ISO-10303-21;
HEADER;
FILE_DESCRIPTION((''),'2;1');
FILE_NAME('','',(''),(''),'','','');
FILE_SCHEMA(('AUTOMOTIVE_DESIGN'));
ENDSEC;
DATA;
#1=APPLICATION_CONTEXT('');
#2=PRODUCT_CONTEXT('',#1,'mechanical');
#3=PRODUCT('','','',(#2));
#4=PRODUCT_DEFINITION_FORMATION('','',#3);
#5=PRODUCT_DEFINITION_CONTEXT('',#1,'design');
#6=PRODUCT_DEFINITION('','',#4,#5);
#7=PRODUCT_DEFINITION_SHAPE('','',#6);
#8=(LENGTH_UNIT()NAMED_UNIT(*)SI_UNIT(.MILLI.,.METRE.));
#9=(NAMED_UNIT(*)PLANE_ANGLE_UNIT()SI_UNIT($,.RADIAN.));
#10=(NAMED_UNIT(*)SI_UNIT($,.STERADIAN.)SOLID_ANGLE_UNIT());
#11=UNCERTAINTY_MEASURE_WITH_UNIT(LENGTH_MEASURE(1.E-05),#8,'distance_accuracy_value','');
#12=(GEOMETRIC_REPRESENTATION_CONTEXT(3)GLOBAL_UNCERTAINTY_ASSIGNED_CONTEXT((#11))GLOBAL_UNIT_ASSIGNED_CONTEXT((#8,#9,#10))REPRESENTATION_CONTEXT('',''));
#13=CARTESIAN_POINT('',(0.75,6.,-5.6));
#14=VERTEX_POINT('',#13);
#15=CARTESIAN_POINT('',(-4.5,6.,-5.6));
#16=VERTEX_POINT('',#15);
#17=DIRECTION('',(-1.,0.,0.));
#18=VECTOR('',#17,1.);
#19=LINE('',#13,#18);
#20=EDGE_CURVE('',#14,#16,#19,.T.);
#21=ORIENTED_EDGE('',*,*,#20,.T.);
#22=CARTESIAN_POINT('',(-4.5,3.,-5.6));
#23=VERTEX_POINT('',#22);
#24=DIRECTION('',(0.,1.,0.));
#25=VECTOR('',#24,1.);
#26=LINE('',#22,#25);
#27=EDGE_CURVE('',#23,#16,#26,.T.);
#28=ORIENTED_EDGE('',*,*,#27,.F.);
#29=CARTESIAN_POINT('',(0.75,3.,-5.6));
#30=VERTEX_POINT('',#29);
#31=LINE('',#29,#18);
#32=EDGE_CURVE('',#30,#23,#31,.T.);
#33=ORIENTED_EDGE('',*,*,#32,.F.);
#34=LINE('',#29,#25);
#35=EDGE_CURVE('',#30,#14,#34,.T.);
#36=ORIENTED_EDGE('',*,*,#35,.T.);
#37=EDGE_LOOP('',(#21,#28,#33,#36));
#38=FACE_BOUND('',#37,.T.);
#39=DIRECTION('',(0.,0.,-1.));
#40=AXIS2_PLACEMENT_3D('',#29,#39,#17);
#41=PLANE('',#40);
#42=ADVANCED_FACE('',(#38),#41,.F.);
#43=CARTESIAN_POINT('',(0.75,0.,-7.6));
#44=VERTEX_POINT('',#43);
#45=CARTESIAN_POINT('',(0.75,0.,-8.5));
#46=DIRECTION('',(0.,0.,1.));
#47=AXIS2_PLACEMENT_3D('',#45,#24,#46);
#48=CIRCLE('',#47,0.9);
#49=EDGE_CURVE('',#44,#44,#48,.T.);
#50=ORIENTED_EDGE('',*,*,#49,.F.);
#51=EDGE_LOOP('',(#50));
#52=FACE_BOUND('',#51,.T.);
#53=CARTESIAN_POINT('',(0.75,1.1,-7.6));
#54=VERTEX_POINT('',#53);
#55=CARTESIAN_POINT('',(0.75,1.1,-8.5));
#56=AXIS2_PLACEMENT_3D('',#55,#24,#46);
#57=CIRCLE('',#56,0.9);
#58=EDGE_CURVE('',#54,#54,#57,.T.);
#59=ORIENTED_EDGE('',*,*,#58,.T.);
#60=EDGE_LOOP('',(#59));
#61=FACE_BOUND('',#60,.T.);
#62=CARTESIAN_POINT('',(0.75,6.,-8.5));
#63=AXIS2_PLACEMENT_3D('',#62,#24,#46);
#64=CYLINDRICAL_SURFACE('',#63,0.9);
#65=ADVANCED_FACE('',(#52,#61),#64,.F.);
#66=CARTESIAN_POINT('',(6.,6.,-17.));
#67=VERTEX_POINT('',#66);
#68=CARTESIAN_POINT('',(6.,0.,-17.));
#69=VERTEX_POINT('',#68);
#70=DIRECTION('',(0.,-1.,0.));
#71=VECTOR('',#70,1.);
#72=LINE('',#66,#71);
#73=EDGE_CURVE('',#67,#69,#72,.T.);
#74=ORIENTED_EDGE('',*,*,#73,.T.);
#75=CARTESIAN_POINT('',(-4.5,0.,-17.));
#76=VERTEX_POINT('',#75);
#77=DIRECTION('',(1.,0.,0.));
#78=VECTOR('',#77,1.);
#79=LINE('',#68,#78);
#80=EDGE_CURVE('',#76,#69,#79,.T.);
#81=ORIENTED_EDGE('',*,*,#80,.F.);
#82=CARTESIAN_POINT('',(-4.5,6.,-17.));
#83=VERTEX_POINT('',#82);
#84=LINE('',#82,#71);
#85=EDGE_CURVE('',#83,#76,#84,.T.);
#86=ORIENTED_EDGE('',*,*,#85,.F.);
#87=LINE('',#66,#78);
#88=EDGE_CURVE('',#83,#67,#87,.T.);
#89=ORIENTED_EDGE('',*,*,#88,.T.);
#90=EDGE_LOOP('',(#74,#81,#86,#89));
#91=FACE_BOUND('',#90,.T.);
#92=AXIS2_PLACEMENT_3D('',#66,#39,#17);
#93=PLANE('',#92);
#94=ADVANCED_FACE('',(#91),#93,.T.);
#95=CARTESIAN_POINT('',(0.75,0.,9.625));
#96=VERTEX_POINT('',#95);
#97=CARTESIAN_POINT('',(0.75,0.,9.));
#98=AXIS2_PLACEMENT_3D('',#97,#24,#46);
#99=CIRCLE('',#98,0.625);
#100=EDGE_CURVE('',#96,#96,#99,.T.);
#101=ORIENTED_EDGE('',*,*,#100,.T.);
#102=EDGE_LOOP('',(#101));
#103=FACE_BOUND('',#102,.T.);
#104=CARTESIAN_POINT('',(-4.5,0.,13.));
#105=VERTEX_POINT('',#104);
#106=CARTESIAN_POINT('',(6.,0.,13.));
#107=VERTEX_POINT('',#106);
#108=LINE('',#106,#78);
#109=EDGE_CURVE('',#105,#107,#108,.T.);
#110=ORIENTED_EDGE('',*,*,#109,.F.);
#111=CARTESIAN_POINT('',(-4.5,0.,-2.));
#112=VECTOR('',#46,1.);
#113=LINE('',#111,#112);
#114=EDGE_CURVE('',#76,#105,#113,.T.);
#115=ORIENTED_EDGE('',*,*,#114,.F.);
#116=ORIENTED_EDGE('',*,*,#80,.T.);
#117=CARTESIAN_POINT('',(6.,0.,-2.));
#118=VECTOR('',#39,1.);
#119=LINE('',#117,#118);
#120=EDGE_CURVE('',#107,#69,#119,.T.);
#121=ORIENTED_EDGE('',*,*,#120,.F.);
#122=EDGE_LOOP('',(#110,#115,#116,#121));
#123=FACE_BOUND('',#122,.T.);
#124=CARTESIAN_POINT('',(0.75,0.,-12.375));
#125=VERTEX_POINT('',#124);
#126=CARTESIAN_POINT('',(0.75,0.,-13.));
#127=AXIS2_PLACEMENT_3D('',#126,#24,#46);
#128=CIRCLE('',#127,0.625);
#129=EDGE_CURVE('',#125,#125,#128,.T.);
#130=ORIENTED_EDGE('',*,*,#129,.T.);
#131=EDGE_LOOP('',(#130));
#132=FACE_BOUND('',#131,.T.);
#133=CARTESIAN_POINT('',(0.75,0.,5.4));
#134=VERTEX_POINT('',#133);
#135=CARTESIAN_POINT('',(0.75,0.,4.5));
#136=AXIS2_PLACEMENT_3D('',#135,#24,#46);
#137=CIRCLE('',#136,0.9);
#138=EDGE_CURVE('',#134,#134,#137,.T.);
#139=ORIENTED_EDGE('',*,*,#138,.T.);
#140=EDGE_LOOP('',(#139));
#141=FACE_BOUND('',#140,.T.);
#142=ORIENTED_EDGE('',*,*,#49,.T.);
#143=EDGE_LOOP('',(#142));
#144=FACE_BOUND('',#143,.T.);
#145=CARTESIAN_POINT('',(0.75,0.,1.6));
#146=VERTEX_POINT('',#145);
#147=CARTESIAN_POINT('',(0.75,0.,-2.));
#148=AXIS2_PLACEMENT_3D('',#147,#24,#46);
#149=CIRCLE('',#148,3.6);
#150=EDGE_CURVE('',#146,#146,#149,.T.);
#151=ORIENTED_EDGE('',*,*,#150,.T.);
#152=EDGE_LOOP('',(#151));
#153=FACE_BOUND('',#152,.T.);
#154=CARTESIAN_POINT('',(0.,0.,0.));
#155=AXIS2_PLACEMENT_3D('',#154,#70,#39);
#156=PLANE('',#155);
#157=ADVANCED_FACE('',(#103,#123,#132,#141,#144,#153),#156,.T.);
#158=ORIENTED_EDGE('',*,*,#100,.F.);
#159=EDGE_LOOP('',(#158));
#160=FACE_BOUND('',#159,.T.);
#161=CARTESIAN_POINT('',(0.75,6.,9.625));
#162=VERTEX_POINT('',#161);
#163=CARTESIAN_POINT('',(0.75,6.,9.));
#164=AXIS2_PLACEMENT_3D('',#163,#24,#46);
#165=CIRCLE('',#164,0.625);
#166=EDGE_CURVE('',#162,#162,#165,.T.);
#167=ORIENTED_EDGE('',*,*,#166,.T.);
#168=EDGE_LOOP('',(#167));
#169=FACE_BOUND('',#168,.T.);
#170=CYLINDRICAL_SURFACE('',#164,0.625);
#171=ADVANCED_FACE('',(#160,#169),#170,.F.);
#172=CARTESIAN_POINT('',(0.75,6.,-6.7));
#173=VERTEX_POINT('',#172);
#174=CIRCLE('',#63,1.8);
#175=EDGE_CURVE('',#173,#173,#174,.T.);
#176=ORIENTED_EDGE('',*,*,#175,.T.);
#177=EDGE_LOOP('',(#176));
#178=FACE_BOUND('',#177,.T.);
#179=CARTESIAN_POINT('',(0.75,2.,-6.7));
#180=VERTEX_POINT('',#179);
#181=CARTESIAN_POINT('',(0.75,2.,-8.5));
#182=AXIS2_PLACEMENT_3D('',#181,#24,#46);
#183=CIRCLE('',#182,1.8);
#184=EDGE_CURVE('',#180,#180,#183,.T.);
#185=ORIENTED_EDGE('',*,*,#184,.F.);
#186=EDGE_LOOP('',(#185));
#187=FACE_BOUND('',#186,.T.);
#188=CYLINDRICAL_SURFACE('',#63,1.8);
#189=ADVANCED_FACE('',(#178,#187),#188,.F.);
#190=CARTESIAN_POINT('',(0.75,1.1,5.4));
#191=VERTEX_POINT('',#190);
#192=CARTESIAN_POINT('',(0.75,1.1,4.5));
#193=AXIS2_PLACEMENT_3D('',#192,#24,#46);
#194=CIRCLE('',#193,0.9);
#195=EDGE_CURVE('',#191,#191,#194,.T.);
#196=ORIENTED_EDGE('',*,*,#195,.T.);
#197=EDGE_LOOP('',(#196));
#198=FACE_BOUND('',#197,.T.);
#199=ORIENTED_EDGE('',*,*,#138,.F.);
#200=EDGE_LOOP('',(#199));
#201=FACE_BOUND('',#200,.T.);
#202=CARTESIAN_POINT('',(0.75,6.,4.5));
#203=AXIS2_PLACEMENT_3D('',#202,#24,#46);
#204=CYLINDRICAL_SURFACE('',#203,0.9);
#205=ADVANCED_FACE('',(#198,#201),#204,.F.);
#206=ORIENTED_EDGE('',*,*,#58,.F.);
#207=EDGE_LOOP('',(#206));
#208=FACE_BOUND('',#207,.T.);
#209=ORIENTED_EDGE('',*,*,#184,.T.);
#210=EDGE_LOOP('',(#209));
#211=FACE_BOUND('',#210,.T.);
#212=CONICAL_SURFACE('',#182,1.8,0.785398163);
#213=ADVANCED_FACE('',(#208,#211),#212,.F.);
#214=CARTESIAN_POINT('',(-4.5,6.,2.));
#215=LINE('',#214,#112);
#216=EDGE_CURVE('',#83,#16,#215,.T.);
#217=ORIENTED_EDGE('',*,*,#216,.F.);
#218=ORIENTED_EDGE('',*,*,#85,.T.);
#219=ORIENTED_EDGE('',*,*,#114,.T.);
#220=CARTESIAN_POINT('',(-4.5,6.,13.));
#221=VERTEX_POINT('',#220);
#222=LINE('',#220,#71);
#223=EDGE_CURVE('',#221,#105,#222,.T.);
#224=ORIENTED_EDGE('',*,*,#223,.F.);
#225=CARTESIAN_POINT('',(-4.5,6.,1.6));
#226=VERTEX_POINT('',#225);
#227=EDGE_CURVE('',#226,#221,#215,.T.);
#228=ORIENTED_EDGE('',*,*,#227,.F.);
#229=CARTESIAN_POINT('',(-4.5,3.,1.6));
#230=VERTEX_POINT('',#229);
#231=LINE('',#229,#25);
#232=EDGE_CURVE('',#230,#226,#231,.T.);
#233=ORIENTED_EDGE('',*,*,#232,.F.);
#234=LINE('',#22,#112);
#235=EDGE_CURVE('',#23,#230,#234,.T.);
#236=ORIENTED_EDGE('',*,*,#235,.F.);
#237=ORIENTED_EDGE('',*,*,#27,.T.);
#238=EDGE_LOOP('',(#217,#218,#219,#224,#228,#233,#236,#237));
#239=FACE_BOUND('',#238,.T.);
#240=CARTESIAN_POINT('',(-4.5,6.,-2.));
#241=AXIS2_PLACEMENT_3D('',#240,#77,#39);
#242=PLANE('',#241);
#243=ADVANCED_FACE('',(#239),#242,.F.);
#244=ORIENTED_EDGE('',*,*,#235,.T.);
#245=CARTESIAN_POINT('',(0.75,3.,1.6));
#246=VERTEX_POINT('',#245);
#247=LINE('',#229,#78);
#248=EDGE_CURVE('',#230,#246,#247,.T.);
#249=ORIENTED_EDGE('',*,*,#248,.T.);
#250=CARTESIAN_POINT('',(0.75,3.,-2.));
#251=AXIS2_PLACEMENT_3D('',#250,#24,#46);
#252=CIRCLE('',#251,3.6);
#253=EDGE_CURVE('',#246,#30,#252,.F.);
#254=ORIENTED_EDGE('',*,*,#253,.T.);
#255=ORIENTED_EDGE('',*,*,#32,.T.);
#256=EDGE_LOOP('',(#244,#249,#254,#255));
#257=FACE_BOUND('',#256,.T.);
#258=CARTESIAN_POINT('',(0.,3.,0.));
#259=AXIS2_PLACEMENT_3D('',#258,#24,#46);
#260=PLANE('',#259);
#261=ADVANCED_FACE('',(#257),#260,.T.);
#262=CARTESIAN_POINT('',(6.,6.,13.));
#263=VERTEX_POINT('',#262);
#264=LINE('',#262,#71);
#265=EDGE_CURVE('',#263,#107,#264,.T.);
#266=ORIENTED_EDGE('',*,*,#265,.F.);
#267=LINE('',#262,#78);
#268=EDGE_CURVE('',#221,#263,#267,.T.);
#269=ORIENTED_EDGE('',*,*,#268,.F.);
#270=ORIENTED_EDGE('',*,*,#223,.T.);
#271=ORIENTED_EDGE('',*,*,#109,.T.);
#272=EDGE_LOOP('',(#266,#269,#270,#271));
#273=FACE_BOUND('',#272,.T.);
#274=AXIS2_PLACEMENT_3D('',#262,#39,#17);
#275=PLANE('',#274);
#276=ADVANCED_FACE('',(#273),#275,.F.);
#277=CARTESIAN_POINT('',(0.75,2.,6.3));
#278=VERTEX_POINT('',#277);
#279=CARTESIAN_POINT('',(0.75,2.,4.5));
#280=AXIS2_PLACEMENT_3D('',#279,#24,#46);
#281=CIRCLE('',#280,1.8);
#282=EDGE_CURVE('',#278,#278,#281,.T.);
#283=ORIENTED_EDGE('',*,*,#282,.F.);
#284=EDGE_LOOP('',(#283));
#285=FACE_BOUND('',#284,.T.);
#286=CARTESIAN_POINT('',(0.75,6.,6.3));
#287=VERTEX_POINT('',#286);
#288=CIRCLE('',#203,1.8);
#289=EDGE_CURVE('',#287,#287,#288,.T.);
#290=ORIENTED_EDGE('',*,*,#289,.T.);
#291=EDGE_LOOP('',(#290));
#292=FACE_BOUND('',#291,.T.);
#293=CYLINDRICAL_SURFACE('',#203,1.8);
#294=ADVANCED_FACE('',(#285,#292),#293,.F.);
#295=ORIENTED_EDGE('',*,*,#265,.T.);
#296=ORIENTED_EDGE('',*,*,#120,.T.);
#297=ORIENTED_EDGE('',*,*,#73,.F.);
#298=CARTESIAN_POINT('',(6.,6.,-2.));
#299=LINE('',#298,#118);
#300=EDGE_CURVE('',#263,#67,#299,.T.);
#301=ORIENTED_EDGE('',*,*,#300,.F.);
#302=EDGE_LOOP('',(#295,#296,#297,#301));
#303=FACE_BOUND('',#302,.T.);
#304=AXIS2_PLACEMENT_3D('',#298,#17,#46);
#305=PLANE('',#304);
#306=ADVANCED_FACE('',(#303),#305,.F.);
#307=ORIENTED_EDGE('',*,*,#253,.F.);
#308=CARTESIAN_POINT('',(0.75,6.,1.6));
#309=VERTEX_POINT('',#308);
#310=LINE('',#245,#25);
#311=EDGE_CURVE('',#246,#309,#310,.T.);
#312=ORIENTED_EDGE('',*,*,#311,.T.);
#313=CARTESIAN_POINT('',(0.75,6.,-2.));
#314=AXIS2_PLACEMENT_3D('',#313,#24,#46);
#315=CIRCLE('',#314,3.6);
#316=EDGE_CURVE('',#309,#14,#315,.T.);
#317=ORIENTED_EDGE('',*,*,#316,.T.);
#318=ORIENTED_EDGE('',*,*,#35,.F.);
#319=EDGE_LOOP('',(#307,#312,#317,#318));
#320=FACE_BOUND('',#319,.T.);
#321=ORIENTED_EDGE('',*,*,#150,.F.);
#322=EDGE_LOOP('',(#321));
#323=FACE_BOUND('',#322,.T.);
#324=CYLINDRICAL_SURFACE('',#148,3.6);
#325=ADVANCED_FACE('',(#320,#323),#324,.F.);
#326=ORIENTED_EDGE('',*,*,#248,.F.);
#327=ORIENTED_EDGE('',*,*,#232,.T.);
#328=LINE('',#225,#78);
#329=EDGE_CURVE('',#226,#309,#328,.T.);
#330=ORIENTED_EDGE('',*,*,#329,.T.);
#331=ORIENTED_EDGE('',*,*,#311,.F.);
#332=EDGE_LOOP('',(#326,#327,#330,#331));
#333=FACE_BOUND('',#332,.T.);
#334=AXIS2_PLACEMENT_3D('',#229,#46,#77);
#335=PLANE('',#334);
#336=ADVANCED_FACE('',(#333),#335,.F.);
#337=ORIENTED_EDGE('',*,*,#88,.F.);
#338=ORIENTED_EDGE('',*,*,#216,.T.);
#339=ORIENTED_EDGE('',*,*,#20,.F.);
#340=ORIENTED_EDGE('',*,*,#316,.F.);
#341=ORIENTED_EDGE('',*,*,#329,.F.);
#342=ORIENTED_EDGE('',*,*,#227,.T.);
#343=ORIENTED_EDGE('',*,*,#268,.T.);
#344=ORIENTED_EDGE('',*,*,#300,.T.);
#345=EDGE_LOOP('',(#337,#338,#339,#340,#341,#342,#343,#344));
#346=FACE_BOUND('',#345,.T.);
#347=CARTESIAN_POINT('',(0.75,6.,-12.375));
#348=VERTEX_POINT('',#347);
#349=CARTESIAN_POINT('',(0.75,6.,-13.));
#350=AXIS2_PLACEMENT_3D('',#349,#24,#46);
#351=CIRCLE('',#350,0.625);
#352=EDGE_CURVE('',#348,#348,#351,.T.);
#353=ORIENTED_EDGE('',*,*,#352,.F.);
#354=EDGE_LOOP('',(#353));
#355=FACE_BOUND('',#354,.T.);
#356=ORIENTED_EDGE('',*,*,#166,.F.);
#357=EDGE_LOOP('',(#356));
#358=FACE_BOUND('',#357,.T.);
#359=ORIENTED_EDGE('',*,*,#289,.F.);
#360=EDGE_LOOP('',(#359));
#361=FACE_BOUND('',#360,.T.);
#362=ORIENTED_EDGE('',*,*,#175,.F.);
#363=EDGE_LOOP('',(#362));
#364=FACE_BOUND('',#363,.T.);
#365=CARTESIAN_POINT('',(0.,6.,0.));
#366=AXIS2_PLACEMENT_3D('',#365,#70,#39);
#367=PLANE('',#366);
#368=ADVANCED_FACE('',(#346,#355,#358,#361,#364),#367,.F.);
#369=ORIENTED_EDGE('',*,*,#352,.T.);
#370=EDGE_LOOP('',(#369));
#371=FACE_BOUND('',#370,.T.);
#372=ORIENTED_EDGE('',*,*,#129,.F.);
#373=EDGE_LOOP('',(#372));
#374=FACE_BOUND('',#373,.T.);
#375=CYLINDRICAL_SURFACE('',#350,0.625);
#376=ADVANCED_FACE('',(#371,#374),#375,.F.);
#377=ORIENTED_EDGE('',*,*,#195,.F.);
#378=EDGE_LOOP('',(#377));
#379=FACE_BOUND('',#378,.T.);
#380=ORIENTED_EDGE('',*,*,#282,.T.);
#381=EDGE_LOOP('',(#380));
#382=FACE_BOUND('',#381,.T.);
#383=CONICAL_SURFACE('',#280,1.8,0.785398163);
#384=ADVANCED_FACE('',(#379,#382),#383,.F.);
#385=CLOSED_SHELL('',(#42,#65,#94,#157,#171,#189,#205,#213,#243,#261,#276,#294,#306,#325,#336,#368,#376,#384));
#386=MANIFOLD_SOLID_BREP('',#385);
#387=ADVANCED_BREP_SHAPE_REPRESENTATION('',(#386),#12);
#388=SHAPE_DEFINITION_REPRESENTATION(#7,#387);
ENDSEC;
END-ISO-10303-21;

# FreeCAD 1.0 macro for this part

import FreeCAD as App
import Part
import Sketcher
Q = App.Units.Quantity

doc = App.newDocument("Part")
params = doc.addObject("Spreadsheet::Sheet", "Params")
for row, (alias, value) in enumerate([
    ("sketch1_height", "15 mm"),
    ("sketch1_width", "10.5 mm"),
    ("pad1_length", "6 mm"),
    ("sketch2_width", "6 mm"),
    ("sketch2_width2", "4 mm"),
    ("sketch2_width3", "1.1 mm"),
    ("sketch2_height", "1.8 mm"),
    ("groove_angle", "360 deg"),
    ("sketch3_diameter", "1.25 mm"),
    ("hole_diameter", "1.25 mm"),
    ("sketch4_diameter", "7.2 mm"),
    ("sketch5_height", "7.2 mm"),
    ("sketch5_width", "5.25 mm"),
    ("pocket2_length", "3 mm"),
], start=1):
    params.set(f"A{row}", alias)
    params.set(f"B{row}", "=" + value)
    params.setAlias(f"B{row}", alias)

body = doc.addObject("PartDesign::Body", "Body")

# Sketch on XZ plane
sketch1 = body.newObject("Sketcher::SketchObject", "Sketch")
sketch1.AttachmentSupport = (doc.getObject("XZ_Plane"), [""])
sketch1.MapMode = "FlatFace"
sketch1.addGeometry([
    Part.LineSegment(App.Vector(6, 13, 0), App.Vector(6, -2, 0)),
    Part.LineSegment(App.Vector(6, -2, 0), App.Vector(-4, -2, 0)),
    Part.LineSegment(App.Vector(-4, -2, 0), App.Vector(-4, 13, 0)),
    Part.LineSegment(App.Vector(-4, 13, 0), App.Vector(6, 13, 0)),
], False)
sketch1.addConstraint([
    Sketcher.Constraint("Coincident", 0, 2, 1, 1),
    Sketcher.Constraint("Coincident", 1, 2, 2, 1),
    Sketcher.Constraint("Coincident", 2, 2, 3, 1),
    Sketcher.Constraint("Coincident", 3, 2, 0, 1),
    Sketcher.Constraint("Vertical", 0),
    Sketcher.Constraint("Horizontal", 1),
    Sketcher.Constraint("Vertical", 2),
    Sketcher.Constraint("Horizontal", 3),
    Sketcher.Constraint("DistanceY", 0, 2, 0, 1, 15.0),
    Sketcher.Constraint("DistanceX", 1, 2, 1, 1, 10.5),
    Sketcher.Constraint("DistanceX", -1, 1, 0, 2, 6.0),
    Sketcher.Constraint("DistanceY", 0, 2, -1, 1, 2.0),
])
sketch1.setExpression("Constraints[8]", "Params.sketch1_height")
sketch1.setExpression("Constraints[9]", "Params.sketch1_width")
pad1 = body.newObject("PartDesign::Pad", "Pad")
pad1.Profile = sketch1
pad1.setExpression("Length", "Params.pad1_length")
pad1.Reversed = True

# Sketch on YZ plane
sketch2 = body.newObject("Sketcher::SketchObject", "Sketch001")
sketch2.AttachmentSupport = (doc.getObject("YZ_Plane"), [""])
sketch2.MapMode = "FlatFace"
sketch2.AttachmentOffset = App.Placement(App.Vector(0, 0, 0.75), App.Rotation())
sketch2.addGeometry([
    Part.LineSegment(App.Vector(0, 4.5, 0), App.Vector(6, 4.5, 0)),  # 0
    Part.LineSegment(App.Vector(6, 4.5, 0), App.Vector(6, 6.3, 0)),  # 1
    Part.LineSegment(App.Vector(6, 6.3, 0), App.Vector(2, 6.3, 0)),  # 2
    Part.LineSegment(App.Vector(2, 6.3, 0), App.Vector(1.1, 5.4, 0)),  # 3
    Part.LineSegment(App.Vector(1.1, 5.4, 0), App.Vector(0, 5.4, 0)),  # 4
    Part.LineSegment(App.Vector(0, 5.4, 0), App.Vector(0, 4.5, 0)),  # 5
], False)
sketch2.addGeometry(Part.LineSegment(App.Vector(6, 4.5, 0), App.Vector(0, 4.5, 0)), True)  # axis
sketch2.addConstraint([
    Sketcher.Constraint("Coincident", 0, 2, 1, 1),
    Sketcher.Constraint("Coincident", 1, 2, 2, 1),
    Sketcher.Constraint("Coincident", 2, 2, 3, 1),
    Sketcher.Constraint("Coincident", 3, 2, 4, 1),
    Sketcher.Constraint("Coincident", 4, 2, 5, 1),
    Sketcher.Constraint("Coincident", 5, 2, 0, 1),
    Sketcher.Constraint("Horizontal", 0),
    Sketcher.Constraint("Vertical", 1),
    Sketcher.Constraint("Horizontal", 2),
    Sketcher.Constraint("Horizontal", 4),
    Sketcher.Constraint("Vertical", 5),
    Sketcher.Constraint("Horizontal", 6),
    Sketcher.Constraint("Coincident", 6, 1, 0, 2),
    Sketcher.Constraint("PointOnObject", 4, 2, -2),
    Sketcher.Constraint("PointOnObject", 6, 2, -2),
    Sketcher.Constraint("DistanceX", 0, 1, 0, 2, 6.0),
    Sketcher.Constraint("DistanceX", 2, 2, 2, 1, 4.0),
    Sketcher.Constraint("Angle", 3, Q("-135 deg")),
    Sketcher.Constraint("DistanceX", 4, 2, 4, 1, 1.1),
    Sketcher.Constraint("DistanceY", 1, 1, 1, 2, 1.8),
    Sketcher.Constraint("DistanceY", -1, 1, 0, 2, 4.5),
])
sketch2.setExpression("Constraints[15]", "Params.sketch2_width")
sketch2.setExpression("Constraints[16]", "Params.sketch2_width2")
sketch2.setExpression("Constraints[18]", "Params.sketch2_width3")
sketch2.setExpression("Constraints[19]", "Params.sketch2_height")
groove = body.newObject("PartDesign::Groove", "Groove")
groove.Profile = sketch2
groove.ReferenceAxis = (sketch2, ["Axis0"])
groove.setExpression("Angle", "Params.groove_angle")

# Sketch on XZ plane
sketch3 = body.newObject("Sketcher::SketchObject", "Sketch002")
sketch3.AttachmentSupport = (doc.getObject("XZ_Plane"), [""])
sketch3.MapMode = "FlatFace"
sketch3.AttachmentOffset = App.Placement(App.Vector(0, 0, -6), App.Rotation())
sketch3.addGeometry(Part.Circle(App.Vector(0.8, 9, 0), App.Vector(0, 0, 1), 0.6), False)
sketch3.addConstraint([
    Sketcher.Constraint("Diameter", 0, 1.25),
    Sketcher.Constraint("DistanceY", -1, 1, 0, 3, 9.0),
    Sketcher.Constraint("DistanceX", -1, 1, 0, 3, 0.75),
])
sketch3.setExpression("Constraints[0]", "Params.sketch3_diameter")
doc.recompute()
hole = body.newObject("PartDesign::Hole", "Hole")
hole.Profile = sketch3
hole.ThreadType = "None"
hole.setExpression("Diameter", "Params.hole_diameter")
hole.DepthType = "ThroughAll"
hole.Reversed = True
doc.recompute()

datumplane = body.newObject("PartDesign::Plane", "DatumPlane")
datumplane.AttachmentSupport = (doc.getObject("XY_Plane"), [""])
datumplane.MapMode = "FlatFace"
datumplane.AttachmentOffset = App.Placement(App.Vector(0, 0, -2), App.Rotation())
mirrored = body.newObject("PartDesign::Mirrored", "Mirrored")
mirrored.Originals = [pad1, groove, hole]
mirrored.MirrorPlane = (datumplane, [""])
body.Tip = mirrored

# Sketch on XZ plane
sketch4 = body.newObject("Sketcher::SketchObject", "Sketch003")
sketch4.AttachmentSupport = (doc.getObject("XZ_Plane"), [""])
sketch4.MapMode = "FlatFace"
sketch4.AttachmentOffset = App.Placement(App.Vector(0, 0, -6), App.Rotation())
sketch4.addGeometry(Part.Circle(App.Vector(0.8, -2, 0), App.Vector(0, 0, 1), 3.6), False)
sketch4.addConstraint([
    Sketcher.Constraint("Diameter", 0, 7.2),
    Sketcher.Constraint("DistanceY", 0, 3, -1, 1, 2.0),
    Sketcher.Constraint("DistanceX", -1, 1, 0, 3, 0.75),
])
sketch4.setExpression("Constraints[0]", "Params.sketch4_diameter")
pocket1 = body.newObject("PartDesign::Pocket", "Pocket")
pocket1.Profile = sketch4
pocket1.Type = "ThroughAll"
pocket1.Reversed = True

# Sketch on XZ plane
sketch5 = body.newObject("Sketcher::SketchObject", "Sketch004")
sketch5.AttachmentSupport = (doc.getObject("XZ_Plane"), [""])
sketch5.MapMode = "FlatFace"
sketch5.AttachmentOffset = App.Placement(App.Vector(0, 0, -6), App.Rotation())
sketch5.addGeometry([
    Part.LineSegment(App.Vector(-4, -6, 0), App.Vector(-4, 2, 0)),
    Part.LineSegment(App.Vector(-4, 2, 0), App.Vector(1, 2, 0)),
    Part.LineSegment(App.Vector(1, 2, 0), App.Vector(1, -6, 0)),
    Part.LineSegment(App.Vector(1, -6, 0), App.Vector(-4, -6, 0)),
], False)
sketch5.addConstraint([
    Sketcher.Constraint("Coincident", 0, 2, 1, 1),
    Sketcher.Constraint("Coincident", 1, 2, 2, 1),
    Sketcher.Constraint("Coincident", 2, 2, 3, 1),
    Sketcher.Constraint("Coincident", 3, 2, 0, 1),
    Sketcher.Constraint("Vertical", 0),
    Sketcher.Constraint("Horizontal", 1),
    Sketcher.Constraint("Vertical", 2),
    Sketcher.Constraint("Horizontal", 3),
    Sketcher.Constraint("DistanceY", 0, 1, 0, 2, 7.2),
    Sketcher.Constraint("DistanceX", 1, 1, 1, 2, 5.25),
    Sketcher.Constraint("DistanceX", 0, 2, -1, 1, 4.5),
    Sketcher.Constraint("DistanceY", -1, 1, 0, 2, 1.6),
])
sketch5.setExpression("Constraints[8]", "Params.sketch5_height")
sketch5.setExpression("Constraints[9]", "Params.sketch5_width")
pocket2 = body.newObject("PartDesign::Pocket", "Pocket001")
pocket2.Profile = sketch5
pocket2.setExpression("Length", "Params.pocket2_length")
pocket2.Reversed = True

doc.recompute()
